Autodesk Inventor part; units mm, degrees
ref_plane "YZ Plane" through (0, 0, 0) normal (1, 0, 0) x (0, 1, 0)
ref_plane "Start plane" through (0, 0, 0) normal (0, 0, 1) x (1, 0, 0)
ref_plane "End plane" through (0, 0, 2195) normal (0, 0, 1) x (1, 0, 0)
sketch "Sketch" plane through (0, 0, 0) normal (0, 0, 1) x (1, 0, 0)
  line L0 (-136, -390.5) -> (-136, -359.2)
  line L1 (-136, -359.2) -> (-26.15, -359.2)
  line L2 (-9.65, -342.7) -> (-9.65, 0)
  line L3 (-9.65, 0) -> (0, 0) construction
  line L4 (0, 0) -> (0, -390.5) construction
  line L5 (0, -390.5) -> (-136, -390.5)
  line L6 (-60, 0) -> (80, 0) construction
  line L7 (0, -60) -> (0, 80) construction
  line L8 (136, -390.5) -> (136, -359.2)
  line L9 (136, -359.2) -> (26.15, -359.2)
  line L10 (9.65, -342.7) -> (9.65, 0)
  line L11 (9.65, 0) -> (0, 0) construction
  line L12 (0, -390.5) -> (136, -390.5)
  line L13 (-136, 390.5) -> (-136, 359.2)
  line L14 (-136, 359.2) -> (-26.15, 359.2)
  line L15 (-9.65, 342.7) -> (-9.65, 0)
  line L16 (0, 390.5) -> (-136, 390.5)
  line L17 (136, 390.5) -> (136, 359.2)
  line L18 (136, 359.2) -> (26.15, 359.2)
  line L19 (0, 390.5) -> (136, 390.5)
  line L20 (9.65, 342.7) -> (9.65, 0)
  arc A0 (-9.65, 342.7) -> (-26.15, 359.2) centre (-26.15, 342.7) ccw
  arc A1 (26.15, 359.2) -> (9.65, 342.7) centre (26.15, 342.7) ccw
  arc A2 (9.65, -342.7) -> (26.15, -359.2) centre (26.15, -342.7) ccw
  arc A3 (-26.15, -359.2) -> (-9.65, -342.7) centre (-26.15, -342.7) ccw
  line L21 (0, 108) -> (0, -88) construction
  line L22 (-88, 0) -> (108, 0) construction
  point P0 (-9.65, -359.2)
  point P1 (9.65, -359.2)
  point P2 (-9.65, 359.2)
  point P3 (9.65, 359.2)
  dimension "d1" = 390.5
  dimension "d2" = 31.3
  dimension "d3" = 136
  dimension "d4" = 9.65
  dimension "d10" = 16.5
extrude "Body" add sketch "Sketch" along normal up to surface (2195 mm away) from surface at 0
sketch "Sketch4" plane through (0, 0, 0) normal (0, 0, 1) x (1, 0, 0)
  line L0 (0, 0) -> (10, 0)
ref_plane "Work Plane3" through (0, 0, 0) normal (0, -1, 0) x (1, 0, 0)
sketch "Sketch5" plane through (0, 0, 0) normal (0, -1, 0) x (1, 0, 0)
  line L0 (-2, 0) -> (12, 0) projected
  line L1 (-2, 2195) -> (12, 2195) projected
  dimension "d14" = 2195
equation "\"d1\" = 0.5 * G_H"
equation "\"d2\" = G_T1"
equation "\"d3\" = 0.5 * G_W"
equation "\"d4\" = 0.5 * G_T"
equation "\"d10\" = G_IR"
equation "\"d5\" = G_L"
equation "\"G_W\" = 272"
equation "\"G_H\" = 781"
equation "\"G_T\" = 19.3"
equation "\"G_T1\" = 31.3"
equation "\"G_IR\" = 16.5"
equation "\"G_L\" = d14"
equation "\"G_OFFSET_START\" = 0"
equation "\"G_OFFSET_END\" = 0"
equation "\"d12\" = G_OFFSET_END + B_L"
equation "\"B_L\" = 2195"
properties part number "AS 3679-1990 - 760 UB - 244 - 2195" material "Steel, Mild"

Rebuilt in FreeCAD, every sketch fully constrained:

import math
import FreeCAD as App
import Part
import Sketcher
Q = App.Units.Quantity

doc = App.newDocument("Part")
params = doc.addObject("Spreadsheet::Sheet", "Params")
for row, (alias, value) in enumerate([
    ("sketch1_radius", "16.5 mm"),
    ("sketch1_height", "31.3 mm"),
    ("pad1_length", "2195 mm"),
], start=1):
    params.set(f"A{row}", alias)
    params.set(f"B{row}", "=" + value)
    params.setAlias(f"B{row}", alias)

body = doc.addObject("PartDesign::Body", "Body")

sketch1 = doc.addObject("Sketcher::SketchObject", "Sketch")
body.addObject(sketch1)
sketch1.AttachmentSupport = (doc.XY_Plane, [""])
sketch1.MapMode = "FlatFace"
sketch1.addGeometry([
    Part.LineSegment(App.Vector(-136, -359.2, 0), App.Vector(-136, -390.5, 0)),
    Part.LineSegment(App.Vector(-136, -390.5, 0), App.Vector(136, -390.5, 0)),
    Part.LineSegment(App.Vector(136, -390.5, 0), App.Vector(136, -359.2, 0)),
    Part.LineSegment(App.Vector(136, -359.2, 0), App.Vector(26.15, -359.2, 0)),
    Part.ArcOfCircle(Part.Circle(App.Vector(26.15, -342.7, 0), App.Vector(0, 0, 1), 16.5), math.radians(180), math.radians(270)),
    Part.LineSegment(App.Vector(9.65, -342.7, 0), App.Vector(9.65, 342.7, 0)),
    Part.ArcOfCircle(Part.Circle(App.Vector(26.15, 342.7, 0), App.Vector(0, 0, 1), 16.5), math.radians(90), math.radians(180)),
    Part.LineSegment(App.Vector(26.15, 359.2, 0), App.Vector(136, 359.2, 0)),
    Part.LineSegment(App.Vector(136, 359.2, 0), App.Vector(136, 390.5, 0)),
    Part.LineSegment(App.Vector(136, 390.5, 0), App.Vector(-136, 390.5, 0)),
    Part.LineSegment(App.Vector(-136, 390.5, 0), App.Vector(-136, 359.2, 0)),
    Part.LineSegment(App.Vector(-136, 359.2, 0), App.Vector(-26.15, 359.2, 0)),
    Part.ArcOfCircle(Part.Circle(App.Vector(-26.15, 342.7, 0), App.Vector(0, 0, 1), 16.5), math.radians(0), math.radians(90)),
    Part.LineSegment(App.Vector(-9.65, 342.7, 0), App.Vector(-9.65, -342.7, 0)),
    Part.ArcOfCircle(Part.Circle(App.Vector(-26.15, -342.7, 0), App.Vector(0, 0, 1), 16.5), math.radians(-90), math.radians(0)),
    Part.LineSegment(App.Vector(-26.15, -359.2, 0), App.Vector(-136, -359.2, 0)),
], False)
sketch1.addConstraint([
    Sketcher.Constraint("Coincident", 0, 2, 1, 1),
    Sketcher.Constraint("Coincident", 1, 2, 2, 1),
    Sketcher.Constraint("Coincident", 2, 2, 3, 1),
    Sketcher.Constraint("Tangent", 3, 2, 4, 2),
    Sketcher.Constraint("Tangent", 4, 1, 5, 1),
    Sketcher.Constraint("Tangent", 5, 2, 6, 2),
    Sketcher.Constraint("Tangent", 6, 1, 7, 1),
    Sketcher.Constraint("Coincident", 7, 2, 8, 1),
    Sketcher.Constraint("Coincident", 8, 2, 9, 1),
    Sketcher.Constraint("Coincident", 9, 2, 10, 1),
    Sketcher.Constraint("Coincident", 10, 2, 11, 1),
    Sketcher.Constraint("Tangent", 11, 2, 12, 2),
    Sketcher.Constraint("Tangent", 12, 1, 13, 1),
    Sketcher.Constraint("Tangent", 13, 2, 14, 2),
    Sketcher.Constraint("Tangent", 14, 1, 15, 1),
    Sketcher.Constraint("Coincident", 15, 2, 0, 1),
    Sketcher.Constraint("Vertical", 0),
    Sketcher.Constraint("Horizontal", 1),
    Sketcher.Constraint("Vertical", 2),
    Sketcher.Constraint("Horizontal", 3),
    Sketcher.Constraint("Vertical", 5),
    Sketcher.Constraint("Horizontal", 7),
    Sketcher.Constraint("Vertical", 8),
    Sketcher.Constraint("Horizontal", 9),
    Sketcher.Constraint("Vertical", 10),
    Sketcher.Constraint("Horizontal", 11),
    Sketcher.Constraint("Vertical", 13),
    Sketcher.Constraint("Horizontal", 15),
    Sketcher.Constraint("Equal", 4, 6),
    Sketcher.Constraint("Equal", 6, 12),
    Sketcher.Constraint("Equal", 12, 14),
    Sketcher.Constraint("Symmetric", 4, 3, 12, 3, -1, 1),
    Sketcher.Constraint("Symmetric", 0, 2, 8, 2, -1, 1),
    Sketcher.Constraint("Symmetric", 7, 2, 10, 2, -2),
    Sketcher.Constraint("Symmetric", 2, 2, 15, 2, -2),
    Sketcher.Constraint("Radius", 4, Q("16.5 mm")),
    Sketcher.Constraint("DistanceY", 0, 2, 0, 1, Q("31.3 mm")),
    Sketcher.Constraint("DistanceX", 0, 2, -1, 1, Q("136 mm")),
    Sketcher.Constraint("DistanceY", 0, 2, -1, 1, Q("390.5 mm")),
    Sketcher.Constraint("DistanceX", -1, 1, 4, 1, Q("9.65 mm")),
])
sketch1.setExpression("Constraints[35]", "Params.sketch1_radius")
sketch1.setExpression("Constraints[36]", "Params.sketch1_height")
pad1 = doc.addObject("PartDesign::Pad", "Pad")
body.addObject(pad1)
pad1.Profile = sketch1
pad1.setExpression("Length", "Params.pad1_length")

doc.recompute()
